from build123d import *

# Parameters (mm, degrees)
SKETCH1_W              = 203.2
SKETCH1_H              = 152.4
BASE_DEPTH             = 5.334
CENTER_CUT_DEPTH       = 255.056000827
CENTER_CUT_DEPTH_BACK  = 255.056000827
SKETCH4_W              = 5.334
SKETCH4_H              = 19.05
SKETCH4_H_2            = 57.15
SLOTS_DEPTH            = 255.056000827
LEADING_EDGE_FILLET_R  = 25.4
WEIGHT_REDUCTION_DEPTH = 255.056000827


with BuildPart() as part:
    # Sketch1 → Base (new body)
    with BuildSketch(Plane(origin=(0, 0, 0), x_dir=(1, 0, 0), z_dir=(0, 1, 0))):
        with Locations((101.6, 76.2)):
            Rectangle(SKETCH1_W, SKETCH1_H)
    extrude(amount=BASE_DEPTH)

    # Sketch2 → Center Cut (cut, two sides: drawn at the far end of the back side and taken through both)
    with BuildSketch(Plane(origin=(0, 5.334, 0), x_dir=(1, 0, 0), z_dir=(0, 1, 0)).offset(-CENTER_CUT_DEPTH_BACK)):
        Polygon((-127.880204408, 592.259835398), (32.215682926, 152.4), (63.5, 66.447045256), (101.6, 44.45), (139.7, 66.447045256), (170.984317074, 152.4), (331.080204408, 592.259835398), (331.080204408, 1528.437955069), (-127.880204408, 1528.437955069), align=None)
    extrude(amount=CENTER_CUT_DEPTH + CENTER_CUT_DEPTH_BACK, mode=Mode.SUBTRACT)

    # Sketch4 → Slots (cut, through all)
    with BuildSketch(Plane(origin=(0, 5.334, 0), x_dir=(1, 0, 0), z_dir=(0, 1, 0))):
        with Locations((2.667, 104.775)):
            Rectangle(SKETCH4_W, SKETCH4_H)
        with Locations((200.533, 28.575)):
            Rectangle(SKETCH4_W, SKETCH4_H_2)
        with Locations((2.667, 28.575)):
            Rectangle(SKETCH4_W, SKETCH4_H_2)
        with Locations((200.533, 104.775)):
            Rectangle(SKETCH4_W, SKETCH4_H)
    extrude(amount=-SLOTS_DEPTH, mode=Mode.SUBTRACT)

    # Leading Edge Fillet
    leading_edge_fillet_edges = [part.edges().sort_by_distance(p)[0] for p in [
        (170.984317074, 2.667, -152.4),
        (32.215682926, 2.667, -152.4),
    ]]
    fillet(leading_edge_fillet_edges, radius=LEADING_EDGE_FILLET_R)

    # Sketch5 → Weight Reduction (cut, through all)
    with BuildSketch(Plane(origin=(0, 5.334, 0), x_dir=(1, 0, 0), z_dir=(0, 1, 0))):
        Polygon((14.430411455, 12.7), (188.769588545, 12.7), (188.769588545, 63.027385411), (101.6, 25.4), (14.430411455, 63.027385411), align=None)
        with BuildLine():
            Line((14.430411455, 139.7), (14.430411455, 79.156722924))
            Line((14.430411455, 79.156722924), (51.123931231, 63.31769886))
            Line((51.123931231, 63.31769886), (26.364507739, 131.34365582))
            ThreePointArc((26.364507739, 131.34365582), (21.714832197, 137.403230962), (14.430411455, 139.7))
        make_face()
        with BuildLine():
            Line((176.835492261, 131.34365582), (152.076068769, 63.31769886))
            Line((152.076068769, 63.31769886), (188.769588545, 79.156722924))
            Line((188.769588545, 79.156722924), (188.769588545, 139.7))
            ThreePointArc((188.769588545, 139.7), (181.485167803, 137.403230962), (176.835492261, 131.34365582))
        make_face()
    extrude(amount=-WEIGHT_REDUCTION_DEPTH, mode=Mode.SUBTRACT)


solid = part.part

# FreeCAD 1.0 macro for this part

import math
import FreeCAD as App
import Part
import Sketcher
from FreeCAD import Vector
Q = App.Units.Quantity


def edges_at(feature, points):
    """Names of the edges that pass closest to the given points."""
    edges = feature.Shape.Edges
    near = lambda p: min(range(len(edges)), key=lambda i: edges[i].distToShape(Part.Vertex(*p))[0])
    return sorted({f"Edge{near(p) + 1}" for p in points})


def add_polygon(sketch, points):
    """Adds a closed chain of lines whose ends are joined by coincident constraints."""
    first, n = sketch.GeometryCount, len(points)
    for a, b in zip(points, points[1:] + points[:1]):
        sketch.addGeometry(Part.LineSegment(App.Vector(*a, 0), App.Vector(*b, 0)), False)
    for i in range(n):
        sketch.addConstraint(Sketcher.Constraint("Coincident", first + i, 2, first + (i + 1) % n, 1))

doc = App.newDocument("Part")
body = doc.addObject("PartDesign::Body", "Body")

# Sketch on XZ plane
sketch1 = doc.addObject("Sketcher::SketchObject", "Sketch")
body.addObject(sketch1)
sketch1.AttachmentSupport = (doc.XZ_Plane, [""])
sketch1.MapMode = "FlatFace"
add_polygon(sketch1, [(0, -152.4), (0, 0), (203.2, 0), (203.2, -152.4)])  # lines 0-3
sketch1.addConstraint([
    Sketcher.Constraint("Vertical", 0),
    Sketcher.Constraint("Horizontal", 1),
    Sketcher.Constraint("Vertical", 2),
    Sketcher.Constraint("Horizontal", 3),
    Sketcher.Constraint("Coincident", 0, 2, -1, 1),
    Sketcher.Constraint("DistanceX", 1, 1, 1, 2, Q("8 in")),
    Sketcher.Constraint("DistanceY", 0, 1, 0, 2, Q("6 in")),
])
pad1 = doc.addObject("PartDesign::Pad", "Pad")
body.addObject(pad1)
pad1.Profile = sketch1
pad1.Length = Q("0.21 in")
pad1.Reversed = True

# Sketch on XZ plane
sketch2 = doc.addObject("Sketcher::SketchObject", "Sketch001")
body.addObject(sketch2)
sketch2.AttachmentSupport = (doc.XZ_Plane, [""])
sketch2.MapMode = "FlatFace"
sketch2.AttachmentOffset = App.Placement(Vector(0, 0, -0.21 * 25.4), App.Rotation())
add_polygon(sketch2, [(-127.880204, -592.259835), (63.5, -66.447045), (101.6, -44.45), (139.7, -66.447045), (331.080204, -592.259835), (331.080204, -1528.437955), (-127.880204, -1528.437955)])  # lines 0-6
sketch2.addConstraint([
    Sketcher.Constraint("Vertical", 4),
    Sketcher.Constraint("Horizontal", 5),
    Sketcher.Constraint("Vertical", 6),
    Sketcher.Constraint("Horizontal", 0, 2, 2, 2),
    Sketcher.Constraint("Horizontal", 3, 2, 6, 2),
    Sketcher.Constraint("Equal", 1, 2),
    Sketcher.Constraint("Equal", 0, 3),
    Sketcher.Constraint("DistanceX", -1, 1, 1, 2, Q("4 in")),
    Sketcher.Constraint("Angle", 0, Q("70 deg")),
    Sketcher.Constraint("Angle", 1, Q("30 deg")),
    Sketcher.Constraint("DistanceX", 0, 2, 2, 2, Q("3 in")),
    Sketcher.Constraint("DistanceY", 1, 2, -1, 1, Q("1.75 in")),
    Sketcher.Constraint("DistanceX", 5, 2, 5, 1, 458.960409),
    Sketcher.Constraint("DistanceY", 4, 2, 4, 1, 936.17812),
])
pocket1 = doc.addObject("PartDesign::Pocket", "Pocket")
body.addObject(pocket1)
pocket1.Profile = sketch2
pocket1.Type = "ThroughAll"
pocket1.Midplane = True

# Sketch on XZ plane
sketch3 = doc.addObject("Sketcher::SketchObject", "Sketch002")
body.addObject(sketch3)
sketch3.AttachmentSupport = (doc.XZ_Plane, [""])
sketch3.MapMode = "FlatFace"
sketch3.AttachmentOffset = App.Placement(Vector(0, 0, -0.21 * 25.4), App.Rotation())
add_polygon(sketch3, [(0, -114.3), (0, -95.25), (5.334, -95.25), (5.334, -114.3)])  # lines 0-3
add_polygon(sketch3, [(197.866, -57.15), (197.866, 0), (203.2, 0), (203.2, -57.15)])  # lines 4-7
add_polygon(sketch3, [(0, -57.15), (0, 0), (5.334, 0), (5.334, -57.15)])  # lines 8-11
add_polygon(sketch3, [(197.866, -114.3), (197.866, -95.25), (203.2, -95.25), (203.2, -114.3)])  # lines 12-15
sketch3.addConstraint([
    Sketcher.Constraint("Vertical", 0),
    Sketcher.Constraint("Horizontal", 1),
    Sketcher.Constraint("Vertical", 2),
    Sketcher.Constraint("Horizontal", 3),
    Sketcher.Constraint("Vertical", 4),
    Sketcher.Constraint("Horizontal", 5),
    Sketcher.Constraint("Vertical", 6),
    Sketcher.Constraint("Horizontal", 7),
    Sketcher.Constraint("Vertical", 8),
    Sketcher.Constraint("Horizontal", 9),
    Sketcher.Constraint("Vertical", 10),
    Sketcher.Constraint("Horizontal", 11),
    Sketcher.Constraint("Vertical", 12),
    Sketcher.Constraint("Horizontal", 13),
    Sketcher.Constraint("Vertical", 14),
    Sketcher.Constraint("Horizontal", 15),
    Sketcher.Constraint("Coincident", 8, 2, -1, 1),
    Sketcher.Constraint("PointOnObject", 0, 2, -2),
    Sketcher.Constraint("PointOnObject", 4, 2, -1),
    Sketcher.Constraint("Horizontal", 7, 2, 10, 2),
    Sketcher.Constraint("Horizontal", 1, 2, 12, 2),
    Sketcher.Constraint("Horizontal", 3, 2, 14, 2),
    Sketcher.Constraint("Vertical", 2, 2, 9, 2),
    Sketcher.Constraint("Vertical", 7, 2, 12, 2),
    Sketcher.Constraint("Vertical", 6, 2, 13, 2),
    Sketcher.Constraint("Equal", 3, 5),
    Sketcher.Constraint("DistanceX", -1, 1, 5, 2, Q("8 in")),
    Sketcher.Constraint("DistanceX", 1, 1, 1, 2, Q("0.21 in")),
    Sketcher.Constraint("DistanceY", 0, 1, 0, 2, Q("0.75 in")),
    Sketcher.Constraint("DistanceY", 4, 1, 4, 2, Q("2.25 in")),
    Sketcher.Constraint("DistanceY", 2, 2, -1, 1, Q("4.5 in")),
])
pocket2 = doc.addObject("PartDesign::Pocket", "Pocket001")
body.addObject(pocket2)
pocket2.Profile = sketch3
pocket2.Type = "ThroughAll"
pocket2.Reversed = True
doc.recompute()

fillet = doc.addObject("PartDesign::Fillet", "Fillet")
body.addObject(fillet)
fillet.Base = (pocket2, edges_at(pocket2, [(170.984, 2.667, -152.4), (32.216, 2.667, -152.4)]))
fillet.Radius = Q("1 in")

# Sketch on XZ plane
sketch4 = doc.addObject("Sketcher::SketchObject", "Sketch003")
body.addObject(sketch4)
sketch4.AttachmentSupport = (doc.XZ_Plane, [""])
sketch4.MapMode = "FlatFace"
sketch4.AttachmentOffset = App.Placement(Vector(0, 0, -0.21 * 25.4), App.Rotation())
add_polygon(sketch4, [(14.430411, -12.7), (188.769589, -12.7), (188.769589, -63.027385), (101.6, -25.4), (14.430411, -63.027385)])  # lines 0-4
sketch4.addGeometry(Part.LineSegment(Vector(14.430411, -139.7, 0), Vector(14.430411, -79.156723, 0)), False)  # 5
sketch4.addGeometry(Part.LineSegment(Vector(14.430411, -79.156723, 0), Vector(51.123931, -63.317699, 0)), False)  # 6
sketch4.addGeometry(Part.LineSegment(Vector(51.123931, -63.317699, 0), Vector(26.364508, -131.343656, 0)), False)  # 7
sketch4.addGeometry(Part.ArcOfCircle(Part.Circle(Vector(14.430411, -127, 0), Vector(0, 0, 1), 12.7), math.radians(-90), math.radians(-20)), False)  # 8
sketch4.addGeometry(Part.LineSegment(Vector(176.835492, -131.343656, 0), Vector(152.076069, -63.317699, 0)), False)  # 9
sketch4.addGeometry(Part.LineSegment(Vector(152.076069, -63.317699, 0), Vector(188.769589, -79.156723, 0)), False)  # 10
sketch4.addGeometry(Part.LineSegment(Vector(188.769589, -79.156723, 0), Vector(188.769589, -139.7, 0)), False)  # 11
sketch4.addGeometry(Part.ArcOfCircle(Part.Circle(Vector(188.769589, -127, 0), Vector(0, 0, 1), 12.7), math.radians(-160), math.radians(-90)), False)  # 12
sketch4.addConstraint([
    Sketcher.Constraint("Coincident", 5, 2, 6, 1),
    Sketcher.Constraint("Coincident", 6, 2, 7, 1),
    Sketcher.Constraint("Tangent", 7, 2, 8, 2),
    Sketcher.Constraint("Coincident", 8, 1, 5, 1),
    Sketcher.Constraint("Coincident", 9, 2, 10, 1),
    Sketcher.Constraint("Coincident", 10, 2, 11, 1),
    Sketcher.Constraint("Coincident", 11, 2, 12, 2),
    Sketcher.Constraint("Tangent", 12, 1, 9, 1),
    Sketcher.Constraint("Horizontal", 0),
    Sketcher.Constraint("Vertical", 1),
    Sketcher.Constraint("Vertical", 4),
    Sketcher.Constraint("Vertical", 5),
    Sketcher.Constraint("Vertical", 11),
    Sketcher.Constraint("Equal", 8, 12),
    Sketcher.Constraint("Parallel", 3, 6),
    Sketcher.Constraint("Parallel", 2, 10),
    Sketcher.Constraint("Horizontal", 8, 3, 12, 3),
    Sketcher.Constraint("Horizontal", 1, 2, 3, 2),
    Sketcher.Constraint("Horizontal", 6, 2, 9, 2),
    Sketcher.Constraint("Horizontal", 5, 2, 10, 2),
    Sketcher.Constraint("Horizontal", 7, 2, 12, 1),
    Sketcher.Constraint("Vertical", 12, 3, 0, 2),
    Sketcher.Constraint("Vertical", 8, 3, 3, 2),
    Sketcher.Constraint("Vertical", 4, 2, 5, 2),
    Sketcher.Constraint("Vertical", 1, 2, 10, 2),
    Sketcher.Constraint("Radius", 8, Q("0.5 in")),
    Sketcher.Constraint("DistanceY", 8, 3, -1, 1, Q("5 in")),
    Sketcher.Constraint("DistanceX", -1, 1, 2, 2, Q("4 in")),
    Sketcher.Constraint("DistanceY", 2, 2, -1, 1, Q("1 in")),
    Sketcher.Constraint("Angle", 7, Q("-110 deg")),
    Sketcher.Constraint("DistanceY", 11, 2, 0, 2, Q("5 in")),
    Sketcher.Constraint("Distance", 6, 39.966099),
    Sketcher.Constraint("DistanceY", 6, 2, -1, 1, 63.317699),
    Sketcher.Constraint("Distance", 2, 94.943969),
])
pocket3 = doc.addObject("PartDesign::Pocket", "Pocket002")
body.addObject(pocket3)
pocket3.Profile = sketch4
pocket3.Type = "ThroughAll"
pocket3.Reversed = True

doc.recompute()
